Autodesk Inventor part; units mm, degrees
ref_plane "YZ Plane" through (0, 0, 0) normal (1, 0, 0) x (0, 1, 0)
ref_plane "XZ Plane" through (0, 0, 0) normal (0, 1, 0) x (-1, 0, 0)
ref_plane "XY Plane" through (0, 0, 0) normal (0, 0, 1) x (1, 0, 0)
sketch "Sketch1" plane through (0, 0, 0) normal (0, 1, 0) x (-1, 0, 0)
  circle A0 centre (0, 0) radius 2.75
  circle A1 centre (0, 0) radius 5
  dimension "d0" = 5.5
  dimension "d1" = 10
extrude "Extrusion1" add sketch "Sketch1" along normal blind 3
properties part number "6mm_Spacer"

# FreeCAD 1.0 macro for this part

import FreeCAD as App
import Part
import Sketcher

doc = App.newDocument("Part")
params = doc.addObject("Spreadsheet::Sheet", "Params")
for row, (alias, value) in enumerate([
    ("sketch1_diameter", "10 mm"),
    ("sketch1_diameter2", "5.5 mm"),
    ("pad1_length", "3 mm"),
], start=1):
    params.set(f"A{row}", alias)
    params.set(f"B{row}", "=" + value)
    params.setAlias(f"B{row}", alias)

body = doc.addObject("PartDesign::Body", "Body")

# Sketch on XZ plane
sketch1 = doc.addObject("Sketcher::SketchObject", "Sketch")
body.addObject(sketch1)
sketch1.AttachmentSupport = (doc.XZ_Plane, [""])
sketch1.MapMode = "FlatFace"
sketch1.addGeometry([
    Part.Circle(App.Vector(0, 0, 0), App.Vector(0, 0, 1), 5),
    Part.Circle(App.Vector(0, 0, 0), App.Vector(0, 0, 1), 2.8),
], False)
sketch1.addConstraint([
    Sketcher.Constraint("Coincident", 0, 3, -1, 1),
    Sketcher.Constraint("Coincident", 1, 3, -1, 1),
    Sketcher.Constraint("Diameter", 0, 10.0),
    Sketcher.Constraint("Diameter", 1, 5.5),
])
sketch1.setExpression("Constraints[2]", "Params.sketch1_diameter")
sketch1.setExpression("Constraints[3]", "Params.sketch1_diameter2")
pad1 = doc.addObject("PartDesign::Pad", "Pad")
body.addObject(pad1)
pad1.Profile = sketch1
pad1.setExpression("Length", "Params.pad1_length")
pad1.Reversed = True

doc.recompute()
